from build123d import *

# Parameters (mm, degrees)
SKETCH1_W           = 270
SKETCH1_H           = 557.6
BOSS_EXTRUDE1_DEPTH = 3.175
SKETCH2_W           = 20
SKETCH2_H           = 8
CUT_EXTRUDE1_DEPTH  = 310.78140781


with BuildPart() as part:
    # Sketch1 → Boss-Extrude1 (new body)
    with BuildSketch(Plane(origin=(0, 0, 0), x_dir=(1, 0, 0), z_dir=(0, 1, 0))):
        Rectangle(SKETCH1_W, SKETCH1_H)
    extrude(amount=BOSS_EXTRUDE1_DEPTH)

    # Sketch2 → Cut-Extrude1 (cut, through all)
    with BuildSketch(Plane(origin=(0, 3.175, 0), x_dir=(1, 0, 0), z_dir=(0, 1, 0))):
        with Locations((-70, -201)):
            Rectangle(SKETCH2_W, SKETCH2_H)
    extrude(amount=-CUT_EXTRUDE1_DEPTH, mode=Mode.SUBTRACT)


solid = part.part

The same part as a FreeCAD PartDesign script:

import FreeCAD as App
import Part
import Sketcher
from FreeCAD import Vector
Q = App.Units.Quantity


def add_polygon(sketch, points):
    """Adds a closed chain of lines whose ends are joined by coincident constraints."""
    first, n = sketch.GeometryCount, len(points)
    for a, b in zip(points, points[1:] + points[:1]):
        sketch.addGeometry(Part.LineSegment(App.Vector(*a, 0), App.Vector(*b, 0)), False)
    for i in range(n):
        sketch.addConstraint(Sketcher.Constraint("Coincident", first + i, 2, first + (i + 1) % n, 1))

doc = App.newDocument("Part")
body = doc.addObject("PartDesign::Body", "Body")

# Sketch on XZ plane
sketch1 = body.newObject("Sketcher::SketchObject", "Sketch")
sketch1.AttachmentSupport = (doc.getObject("XZ_Plane"), [""])
sketch1.MapMode = "FlatFace"
add_polygon(sketch1, [(-135, -278.8), (-135, 278.8), (135, 278.8), (135, -278.8)])  # lines 0-3
sketch1.addConstraint([
    Sketcher.Constraint("Vertical", 0),
    Sketcher.Constraint("Horizontal", 1),
    Sketcher.Constraint("Vertical", 2),
    Sketcher.Constraint("Horizontal", 3),
    Sketcher.Constraint("Symmetric", 0, 2, 2, 2, -1, 1),
    Sketcher.Constraint("DistanceX", 1, 1, 1, 2, Q("270 mm")),
    Sketcher.Constraint("DistanceY", 0, 1, 0, 2, Q("557.6 mm")),
])
pad1 = body.newObject("PartDesign::Pad", "Pad")
pad1.Profile = sketch1
pad1.Length = 3.175
pad1.Reversed = True

# Sketch on XZ plane
sketch2 = body.newObject("Sketcher::SketchObject", "Sketch001")
sketch2.AttachmentSupport = (doc.getObject("XZ_Plane"), [""])
sketch2.MapMode = "FlatFace"
sketch2.AttachmentOffset = App.Placement(Vector(0, 0, -3.175), App.Rotation())
add_polygon(sketch2, [(-80, 197), (-80, 205), (-60, 205), (-60, 197)])  # lines 0-3
sketch2.addConstraint([
    Sketcher.Constraint("Vertical", 0),
    Sketcher.Constraint("Horizontal", 1),
    Sketcher.Constraint("Vertical", 2),
    Sketcher.Constraint("Horizontal", 3),
    Sketcher.Constraint("DistanceX", 1, 1, 1, 2, Q("20 mm")),
    Sketcher.Constraint("DistanceY", 0, 1, 0, 2, Q("8 mm")),
    Sketcher.Constraint("DistanceX", 0, 2, -1, 1, Q("80 mm")),
    Sketcher.Constraint("DistanceY", -1, 1, 0, 2, Q("205 mm")),
])
pocket1 = body.newObject("PartDesign::Pocket", "Pocket")
pocket1.Profile = sketch2
pocket1.Type = "ThroughAll"
pocket1.Reversed = True

doc.recompute()
